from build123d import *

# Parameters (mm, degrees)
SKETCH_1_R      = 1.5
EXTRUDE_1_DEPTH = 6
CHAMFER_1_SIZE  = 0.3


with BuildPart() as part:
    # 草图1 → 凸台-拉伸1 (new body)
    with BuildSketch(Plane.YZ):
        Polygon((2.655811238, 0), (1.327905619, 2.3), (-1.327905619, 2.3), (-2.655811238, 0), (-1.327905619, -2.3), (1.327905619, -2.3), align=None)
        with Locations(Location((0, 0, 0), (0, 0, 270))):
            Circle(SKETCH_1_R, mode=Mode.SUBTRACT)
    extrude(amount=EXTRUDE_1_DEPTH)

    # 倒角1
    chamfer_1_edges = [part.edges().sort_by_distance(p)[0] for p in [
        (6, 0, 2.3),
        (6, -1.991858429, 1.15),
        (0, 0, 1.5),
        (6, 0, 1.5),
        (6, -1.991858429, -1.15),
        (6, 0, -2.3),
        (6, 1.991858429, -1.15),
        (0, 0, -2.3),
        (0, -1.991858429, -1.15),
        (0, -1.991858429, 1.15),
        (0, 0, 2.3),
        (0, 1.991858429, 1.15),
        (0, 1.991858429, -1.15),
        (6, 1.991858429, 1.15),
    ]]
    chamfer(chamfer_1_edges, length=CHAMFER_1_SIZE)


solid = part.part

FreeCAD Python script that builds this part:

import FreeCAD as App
import Part
import Sketcher

V = App.Vector
Q = App.Units.Quantity


def edges_at(feature, points):
    """Names of the edges that pass closest to the given points."""
    edges = feature.Shape.Edges
    near = lambda p: min(range(len(edges)), key=lambda i: edges[i].distToShape(Part.Vertex(*p))[0])
    return sorted({f"Edge{near(p) + 1}" for p in points})


def add_polygon(sketch, points):
    """Adds a closed chain of lines whose ends are joined by coincident constraints."""
    first, n = sketch.GeometryCount, len(points)
    for a, b in zip(points, points[1:] + points[:1]):
        sketch.addGeometry(Part.LineSegment(App.Vector(*a, 0), App.Vector(*b, 0)), False)
    for i in range(n):
        sketch.addConstraint(Sketcher.Constraint("Coincident", first + i, 2, first + (i + 1) % n, 1))

doc = App.newDocument("Part")
params = doc.addObject("Spreadsheet::Sheet", "Params")
for row, (alias, value) in enumerate([
    ("sketch1_diameter", "3 mm"),
    ("pad1_length", "6 mm"),
    ("chamfer_size", "0.3 mm"),
], start=1):
    params.set(f"A{row}", alias)
    params.set(f"B{row}", "=" + value)
    params.setAlias(f"B{row}", alias)

body = doc.addObject("PartDesign::Body", "Body")

sketch1 = body.newObject("Sketcher::SketchObject", "Sketch")
sketch1.AttachmentSupport = (doc.getObject("YZ_Plane"), [""])
sketch1.MapMode = "FlatFace"
add_polygon(sketch1, [(2.655811, 0), (1.327906, 2.3), (-1.327906, 2.3), (-2.655811, 0), (-1.327906, -2.3), (1.327906, -2.3)])
sketch1.addGeometry(Part.Circle(V(0, 0, 0), V(0, 0, 1), 1.5), False)
sketch1.addConstraint([
    Sketcher.Constraint("Horizontal", 1),
    Sketcher.Constraint("Horizontal", 4),
    Sketcher.Constraint("Coincident", 6, 3, -1, 1),
    Sketcher.Constraint("Symmetric", 0, 2, 3, 2, -1, 1),
    Sketcher.Constraint("Symmetric", 2, 2, 5, 2, -1, 1),
    Sketcher.Constraint("PointOnObject", 2, 2, -1),
    Sketcher.Constraint("Parallel", 2, 5),
    Sketcher.Constraint("Vertical", 1, 2, 3, 2),
    Sketcher.Constraint("Diameter", 6, 3.0),
    Sketcher.Constraint("Angle", 0, Q("120 deg")),
    Sketcher.Constraint("DistanceY", -1, 1, 0, 2, 2.3),
    Sketcher.Constraint("DistanceX", 1, 2, 1, 1, 2.655811),
])
sketch1.setExpression("Constraints[14]", "Params.sketch1_diameter")
pad1 = body.newObject("PartDesign::Pad", "Pad")
pad1.Profile = sketch1
pad1.setExpression("Length", "Params.pad1_length")
doc.recompute()

chamfer = body.newObject("PartDesign::Chamfer", "Chamfer")
chamfer.Base = (pad1, edges_at(pad1, [
    (6, 0, 2.3),
    (6, -1.992, 1.15),
    (0, 0, 1.5),
    (6, 0, 1.5),
    (6, -1.992, -1.15),
    (6, 0, -2.3),
    (6, 1.992, -1.15),
    (0, 0, -2.3),
    (0, -1.992, -1.15),
    (0, -1.992, 1.15),
    (0, 0, 2.3),
    (0, 1.992, 1.15),
    (0, 1.992, -1.15),
    (6, 1.992, 1.15),
]))
chamfer.setExpression("Size", "Params.chamfer_size")

doc.recompute()
